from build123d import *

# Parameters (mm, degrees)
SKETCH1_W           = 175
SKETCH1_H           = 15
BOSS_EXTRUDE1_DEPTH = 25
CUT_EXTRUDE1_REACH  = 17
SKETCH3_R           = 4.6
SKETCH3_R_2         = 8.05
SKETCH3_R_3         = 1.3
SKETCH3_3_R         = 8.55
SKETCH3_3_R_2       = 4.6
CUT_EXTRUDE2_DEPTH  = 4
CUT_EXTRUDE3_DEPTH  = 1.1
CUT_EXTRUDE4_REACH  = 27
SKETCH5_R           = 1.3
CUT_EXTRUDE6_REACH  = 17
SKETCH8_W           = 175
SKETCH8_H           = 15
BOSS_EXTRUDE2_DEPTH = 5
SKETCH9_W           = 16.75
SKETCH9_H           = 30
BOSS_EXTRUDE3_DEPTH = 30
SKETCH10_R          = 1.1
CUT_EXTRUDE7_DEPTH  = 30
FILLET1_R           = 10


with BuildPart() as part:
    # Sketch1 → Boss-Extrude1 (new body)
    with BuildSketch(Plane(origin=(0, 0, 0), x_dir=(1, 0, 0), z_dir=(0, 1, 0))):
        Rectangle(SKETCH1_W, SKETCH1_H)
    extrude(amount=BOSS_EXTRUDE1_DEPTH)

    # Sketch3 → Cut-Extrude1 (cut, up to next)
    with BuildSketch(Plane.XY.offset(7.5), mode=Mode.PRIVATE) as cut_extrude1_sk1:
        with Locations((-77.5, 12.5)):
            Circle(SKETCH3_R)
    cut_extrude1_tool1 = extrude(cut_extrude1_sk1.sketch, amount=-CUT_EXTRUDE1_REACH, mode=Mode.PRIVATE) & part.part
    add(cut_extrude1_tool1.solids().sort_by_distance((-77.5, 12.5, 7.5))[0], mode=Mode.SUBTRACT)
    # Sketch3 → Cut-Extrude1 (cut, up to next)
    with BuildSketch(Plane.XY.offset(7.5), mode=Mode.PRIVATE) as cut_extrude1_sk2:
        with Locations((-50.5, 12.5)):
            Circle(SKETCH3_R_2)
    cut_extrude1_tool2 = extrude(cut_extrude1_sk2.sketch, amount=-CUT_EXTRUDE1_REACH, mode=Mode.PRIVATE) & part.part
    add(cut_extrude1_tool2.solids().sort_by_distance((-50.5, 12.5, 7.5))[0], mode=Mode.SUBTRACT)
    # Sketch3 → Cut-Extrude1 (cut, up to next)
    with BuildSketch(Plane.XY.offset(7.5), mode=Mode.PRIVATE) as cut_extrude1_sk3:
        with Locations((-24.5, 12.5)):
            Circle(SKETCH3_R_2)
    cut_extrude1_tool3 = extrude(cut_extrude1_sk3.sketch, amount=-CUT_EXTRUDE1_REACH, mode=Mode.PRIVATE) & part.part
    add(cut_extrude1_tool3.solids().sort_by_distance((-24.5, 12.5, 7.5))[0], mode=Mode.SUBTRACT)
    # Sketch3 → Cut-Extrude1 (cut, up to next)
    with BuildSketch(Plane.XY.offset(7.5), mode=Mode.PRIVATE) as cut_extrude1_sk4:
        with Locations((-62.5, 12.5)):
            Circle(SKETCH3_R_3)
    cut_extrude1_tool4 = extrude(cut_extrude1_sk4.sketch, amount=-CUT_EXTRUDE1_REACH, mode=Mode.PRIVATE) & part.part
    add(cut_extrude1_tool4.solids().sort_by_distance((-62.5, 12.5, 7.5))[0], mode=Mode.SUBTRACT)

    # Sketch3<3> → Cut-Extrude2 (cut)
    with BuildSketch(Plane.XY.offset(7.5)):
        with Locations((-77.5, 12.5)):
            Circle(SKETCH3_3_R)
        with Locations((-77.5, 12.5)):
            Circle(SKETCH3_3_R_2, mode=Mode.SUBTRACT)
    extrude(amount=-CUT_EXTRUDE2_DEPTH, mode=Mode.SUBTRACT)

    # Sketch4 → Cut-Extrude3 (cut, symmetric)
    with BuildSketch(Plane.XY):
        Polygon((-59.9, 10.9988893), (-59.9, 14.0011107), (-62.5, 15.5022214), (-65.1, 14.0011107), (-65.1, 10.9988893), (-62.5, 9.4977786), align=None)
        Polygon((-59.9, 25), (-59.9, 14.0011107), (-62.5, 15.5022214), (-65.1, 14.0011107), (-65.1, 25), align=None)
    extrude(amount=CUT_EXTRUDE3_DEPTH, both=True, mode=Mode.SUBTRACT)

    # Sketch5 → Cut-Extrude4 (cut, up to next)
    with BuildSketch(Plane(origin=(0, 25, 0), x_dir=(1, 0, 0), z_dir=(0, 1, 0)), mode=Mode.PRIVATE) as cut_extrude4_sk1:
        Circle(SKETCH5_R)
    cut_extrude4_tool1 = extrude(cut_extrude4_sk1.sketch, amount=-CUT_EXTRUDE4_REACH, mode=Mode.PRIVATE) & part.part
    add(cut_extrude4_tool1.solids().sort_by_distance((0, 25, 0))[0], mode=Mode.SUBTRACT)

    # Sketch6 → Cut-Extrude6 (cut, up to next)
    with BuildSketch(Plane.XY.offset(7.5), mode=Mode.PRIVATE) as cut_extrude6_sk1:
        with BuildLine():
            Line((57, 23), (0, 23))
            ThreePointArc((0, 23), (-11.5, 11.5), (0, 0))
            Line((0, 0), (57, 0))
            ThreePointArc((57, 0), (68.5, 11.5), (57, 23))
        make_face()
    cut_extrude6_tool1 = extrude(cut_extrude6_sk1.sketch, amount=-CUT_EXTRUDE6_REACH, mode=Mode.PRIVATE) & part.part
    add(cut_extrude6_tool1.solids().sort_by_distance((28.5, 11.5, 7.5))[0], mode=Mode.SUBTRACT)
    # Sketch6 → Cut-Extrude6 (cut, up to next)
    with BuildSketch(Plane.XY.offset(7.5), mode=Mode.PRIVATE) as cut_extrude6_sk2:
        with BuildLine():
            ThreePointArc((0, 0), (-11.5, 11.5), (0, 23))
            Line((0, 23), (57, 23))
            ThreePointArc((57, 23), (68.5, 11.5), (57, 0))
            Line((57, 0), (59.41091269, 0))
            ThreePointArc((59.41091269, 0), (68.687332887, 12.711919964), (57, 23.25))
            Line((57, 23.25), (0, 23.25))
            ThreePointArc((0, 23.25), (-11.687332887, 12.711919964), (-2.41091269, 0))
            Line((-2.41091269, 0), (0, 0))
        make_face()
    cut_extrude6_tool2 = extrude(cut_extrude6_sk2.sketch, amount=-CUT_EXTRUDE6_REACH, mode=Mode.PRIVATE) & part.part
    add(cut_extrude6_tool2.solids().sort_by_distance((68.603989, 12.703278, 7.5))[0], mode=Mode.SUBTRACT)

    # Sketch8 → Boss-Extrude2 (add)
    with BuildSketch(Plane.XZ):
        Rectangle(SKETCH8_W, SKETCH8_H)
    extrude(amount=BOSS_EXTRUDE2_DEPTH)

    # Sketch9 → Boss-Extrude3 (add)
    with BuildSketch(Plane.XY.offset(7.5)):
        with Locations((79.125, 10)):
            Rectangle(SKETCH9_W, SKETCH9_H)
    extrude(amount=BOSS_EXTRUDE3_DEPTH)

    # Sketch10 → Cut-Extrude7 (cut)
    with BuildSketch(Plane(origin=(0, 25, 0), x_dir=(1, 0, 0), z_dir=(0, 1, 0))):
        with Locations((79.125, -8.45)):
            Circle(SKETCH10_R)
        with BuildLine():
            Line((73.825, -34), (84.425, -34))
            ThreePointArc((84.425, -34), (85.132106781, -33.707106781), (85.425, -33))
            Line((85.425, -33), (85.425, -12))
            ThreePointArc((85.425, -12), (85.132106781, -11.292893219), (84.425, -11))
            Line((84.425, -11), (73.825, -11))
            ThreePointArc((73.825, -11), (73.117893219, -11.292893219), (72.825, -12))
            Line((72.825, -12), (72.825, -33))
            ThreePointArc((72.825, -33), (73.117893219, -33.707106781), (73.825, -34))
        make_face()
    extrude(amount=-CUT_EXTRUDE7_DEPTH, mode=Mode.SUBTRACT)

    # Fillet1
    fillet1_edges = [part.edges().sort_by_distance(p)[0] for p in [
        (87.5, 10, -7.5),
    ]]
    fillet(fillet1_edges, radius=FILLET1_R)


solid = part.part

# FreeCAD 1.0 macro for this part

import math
import FreeCAD as App
import Part
import Sketcher
from FreeCAD import Vector
Q = App.Units.Quantity


def edges_at(feature, points):
    """Names of the edges that pass closest to the given points."""
    edges = feature.Shape.Edges
    near = lambda p: min(range(len(edges)), key=lambda i: edges[i].distToShape(Part.Vertex(*p))[0])
    return sorted({f"Edge{near(p) + 1}" for p in points})

doc = App.newDocument("Part")
params = doc.addObject("Spreadsheet::Sheet", "Params")
for row, (alias, value) in enumerate([
    ("sketch1_width", "175 mm"),
    ("sketch1_height", "15 mm"),
    ("pad1_length", "25 mm"),
    ("sketch2_diameter", "9.2 mm"),
    ("sketch3_diameter", "16.1 mm"),
    ("sketch4_diameter", "16.1 mm"),
    ("sketch5_diameter", "2.6 mm"),
    ("sketch6_diameter", "17.1 mm"),
    ("sketch6_diameter2", "9.2 mm"),
    ("pocket5_length", "4 mm"),
    ("sketch7_width", "5.2 mm"),
    ("pocket6_length", "2.2 mm"),
    ("sketch8_diameter", "2.6 mm"),
    ("sketch9_radius", "11.5 mm"),
    ("sketch9_width", "57 mm"),
    ("sketch10_radius", "11.5 mm"),
    ("sketch10_width", "57 mm"),
    ("sketch10_radius2", "11.75 mm"),
    ("pocket9_length", "15 mm"),
    ("sketch11_width", "175 mm"),
    ("sketch11_height", "15 mm"),
    ("pad2_length", "5 mm"),
    ("sketch12_height", "30 mm"),
    ("sketch12_width", "16.75 mm"),
    ("pad3_length", "30 mm"),
    ("sketch13_radius", "1 mm"),
    ("sketch13_diameter", "2.2 mm"),
    ("sketch13_height", "21 mm"),
    ("sketch13_width", "10.6 mm"),
    ("pocket10_length", "30 mm"),
    ("fillet_radius", "10 mm"),
], start=1):
    params.set(f"A{row}", alias)
    params.set(f"B{row}", "=" + value)
    params.setAlias(f"B{row}", alias)

body = doc.addObject("PartDesign::Body", "Body")

# Sketch on XZ plane
sketch1 = doc.addObject("Sketcher::SketchObject", "Sketch")
body.addObject(sketch1)
sketch1.AttachmentSupport = (doc.XZ_Plane, [""])
sketch1.MapMode = "FlatFace"
sketch1.addGeometry([
    Part.LineSegment(Vector(-88, -8, 0), Vector(-88, 8, 0)),
    Part.LineSegment(Vector(-88, 8, 0), Vector(88, 8, 0)),
    Part.LineSegment(Vector(88, 8, 0), Vector(88, -8, 0)),
    Part.LineSegment(Vector(88, -8, 0), Vector(-88, -8, 0)),
], False)
sketch1.addConstraint([
    Sketcher.Constraint("Coincident", 0, 2, 1, 1),
    Sketcher.Constraint("Coincident", 1, 2, 2, 1),
    Sketcher.Constraint("Coincident", 2, 2, 3, 1),
    Sketcher.Constraint("Coincident", 3, 2, 0, 1),
    Sketcher.Constraint("Vertical", 0),
    Sketcher.Constraint("Horizontal", 1),
    Sketcher.Constraint("Vertical", 2),
    Sketcher.Constraint("Horizontal", 3),
    Sketcher.Constraint("Symmetric", 0, 2, 2, 2, -1, 1),
    Sketcher.Constraint("DistanceX", 1, 1, 1, 2, 175.0),
    Sketcher.Constraint("DistanceY", 0, 1, 0, 2, 15.0),
])
sketch1.setExpression("Constraints[9]", "Params.sketch1_width")
sketch1.setExpression("Constraints[10]", "Params.sketch1_height")
pad1 = doc.addObject("PartDesign::Pad", "Pad")
body.addObject(pad1)
pad1.Profile = sketch1
pad1.setExpression("Length", "Params.pad1_length")
pad1.Reversed = True

# Sketch on XY plane
sketch2 = doc.addObject("Sketcher::SketchObject", "Sketch001")
body.addObject(sketch2)
sketch2.AttachmentSupport = (doc.XY_Plane, [""])
sketch2.MapMode = "FlatFace"
sketch2.AttachmentOffset = App.Placement(Vector(0, 0, 7.5), App.Rotation())
sketch2.addGeometry(Part.Circle(Vector(-77.5, 12.5, 0), Vector(0, 0, 1), 4.6), False)
sketch2.addConstraint([
    Sketcher.Constraint("Diameter", 0, 9.2),
    Sketcher.Constraint("DistanceX", 0, 3, -1, 1, 77.5),
    Sketcher.Constraint("DistanceY", -1, 1, 0, 3, 12.5),
])
sketch2.setExpression("Constraints[0]", "Params.sketch2_diameter")
pocket1 = doc.addObject("PartDesign::Pocket", "Pocket")
body.addObject(pocket1)
pocket1.Profile = sketch2
pocket1.Type = "UpToFirst"

# Sketch on XY plane
sketch3 = doc.addObject("Sketcher::SketchObject", "Sketch002")
body.addObject(sketch3)
sketch3.AttachmentSupport = (doc.XY_Plane, [""])
sketch3.MapMode = "FlatFace"
sketch3.AttachmentOffset = App.Placement(Vector(0, 0, 7.5), App.Rotation())
sketch3.addGeometry(Part.Circle(Vector(-50, 12, 0), Vector(0, 0, 1), 8), False)
sketch3.addConstraint([
    Sketcher.Constraint("Diameter", 0, 16.1),
    Sketcher.Constraint("DistanceX", 0, 3, -1, 1, 50.5),
    Sketcher.Constraint("DistanceY", -1, 1, 0, 3, 12.5),
])
sketch3.setExpression("Constraints[0]", "Params.sketch3_diameter")
pocket2 = doc.addObject("PartDesign::Pocket", "Pocket001")
body.addObject(pocket2)
pocket2.Profile = sketch3
pocket2.Type = "UpToFirst"

# Sketch on XY plane
sketch4 = doc.addObject("Sketcher::SketchObject", "Sketch003")
body.addObject(sketch4)
sketch4.AttachmentSupport = (doc.XY_Plane, [""])
sketch4.MapMode = "FlatFace"
sketch4.AttachmentOffset = App.Placement(Vector(0, 0, 7.5), App.Rotation())
sketch4.addGeometry(Part.Circle(Vector(-24, 12, 0), Vector(0, 0, 1), 8), False)
sketch4.addConstraint([
    Sketcher.Constraint("Diameter", 0, 16.1),
    Sketcher.Constraint("DistanceX", 0, 3, -1, 1, 24.5),
    Sketcher.Constraint("DistanceY", -1, 1, 0, 3, 12.5),
])
sketch4.setExpression("Constraints[0]", "Params.sketch4_diameter")
pocket3 = doc.addObject("PartDesign::Pocket", "Pocket002")
body.addObject(pocket3)
pocket3.Profile = sketch4
pocket3.Type = "UpToFirst"

# Sketch on XY plane
sketch5 = doc.addObject("Sketcher::SketchObject", "Sketch004")
body.addObject(sketch5)
sketch5.AttachmentSupport = (doc.XY_Plane, [""])
sketch5.MapMode = "FlatFace"
sketch5.AttachmentOffset = App.Placement(Vector(0, 0, 7.5), App.Rotation())
sketch5.addGeometry(Part.Circle(Vector(-62.5, 12.5, 0), Vector(0, 0, 1), 1.3), False)
sketch5.addConstraint([
    Sketcher.Constraint("Diameter", 0, 2.6),
    Sketcher.Constraint("DistanceX", 0, 3, -1, 1, 62.5),
    Sketcher.Constraint("DistanceY", -1, 1, 0, 3, 12.5),
])
sketch5.setExpression("Constraints[0]", "Params.sketch5_diameter")
pocket4 = doc.addObject("PartDesign::Pocket", "Pocket003")
body.addObject(pocket4)
pocket4.Profile = sketch5
pocket4.Type = "UpToFirst"

# Sketch on XY plane
sketch6 = doc.addObject("Sketcher::SketchObject", "Sketch005")
body.addObject(sketch6)
sketch6.AttachmentSupport = (doc.XY_Plane, [""])
sketch6.MapMode = "FlatFace"
sketch6.AttachmentOffset = App.Placement(Vector(0, 0, 7.5), App.Rotation())
sketch6.addGeometry([
    Part.Circle(Vector(-77.5, 12.5, 0), Vector(0, 0, 1), 8.6),
    Part.Circle(Vector(-77.5, 12.5, 0), Vector(0, 0, 1), 4.6),
], False)
sketch6.addConstraint([
    Sketcher.Constraint("Coincident", 1, 3, 0, 3),
    Sketcher.Constraint("Diameter", 0, 17.1),
    Sketcher.Constraint("Diameter", 1, 9.2),
    Sketcher.Constraint("DistanceX", 0, 3, -1, 1, 77.5),
    Sketcher.Constraint("DistanceY", -1, 1, 0, 3, 12.5),
])
sketch6.setExpression("Constraints[1]", "Params.sketch6_diameter")
sketch6.setExpression("Constraints[2]", "Params.sketch6_diameter2")
pocket5 = doc.addObject("PartDesign::Pocket", "Pocket004")
body.addObject(pocket5)
pocket5.Profile = sketch6
pocket5.setExpression("Length", "Params.pocket5_length")

# Sketch on XY plane
sketch7 = doc.addObject("Sketcher::SketchObject", "Sketch006")
body.addObject(sketch7)
sketch7.AttachmentSupport = (doc.XY_Plane, [""])
sketch7.MapMode = "FlatFace"
sketch7.addGeometry([
    Part.LineSegment(Vector(-59.9, 11, 0), Vector(-59.9, 25, 0)),  # 0
    Part.LineSegment(Vector(-59.9, 25, 0), Vector(-65.1, 25, 0)),  # 1
    Part.LineSegment(Vector(-65.1, 25, 0), Vector(-65.1, 11, 0)),  # 2
    Part.LineSegment(Vector(-65.1, 11, 0), Vector(-62.5, 9.5, 0)),  # 3
    Part.LineSegment(Vector(-62.5, 9.5, 0), Vector(-59.9, 11, 0)),  # 4
], False)
sketch7.addConstraint([
    Sketcher.Constraint("Coincident", 0, 2, 1, 1),
    Sketcher.Constraint("Coincident", 1, 2, 2, 1),
    Sketcher.Constraint("Coincident", 2, 2, 3, 1),
    Sketcher.Constraint("Coincident", 3, 2, 4, 1),
    Sketcher.Constraint("Coincident", 4, 2, 0, 1),
    Sketcher.Constraint("Vertical", 0),
    Sketcher.Constraint("Horizontal", 1),
    Sketcher.Constraint("Vertical", 2),
    Sketcher.Constraint("Horizontal", 2, 2, 4, 2),
    Sketcher.Constraint("Equal", 3, 4),
    Sketcher.Constraint("Angle", 3, Q("-30 deg")),
    Sketcher.Constraint("DistanceX", 1, 2, 1, 1, 5.2),
    Sketcher.Constraint("DistanceY", -1, 1, 0, 2, 25.0),
    Sketcher.Constraint("DistanceX", 0, 2, -1, 1, 59.9),
    Sketcher.Constraint("DistanceY", 0, 1, 0, 2, 14.001111),
])
sketch7.setExpression("Constraints[11]", "Params.sketch7_width")
pocket6 = doc.addObject("PartDesign::Pocket", "Pocket005")
body.addObject(pocket6)
pocket6.Profile = sketch7
pocket6.setExpression("Length", "Params.pocket6_length")
pocket6.Midplane = True

# Sketch on XZ plane
sketch8 = doc.addObject("Sketcher::SketchObject", "Sketch007")
body.addObject(sketch8)
sketch8.AttachmentSupport = (doc.XZ_Plane, [""])
sketch8.MapMode = "FlatFace"
sketch8.AttachmentOffset = App.Placement(Vector(0, 0, -25), App.Rotation())
sketch8.addGeometry(Part.Circle(Vector(0, 0, 0), Vector(0, 0, 1), 1.3), False)
sketch8.addConstraint([
    Sketcher.Constraint("Coincident", 0, 3, -1, 1),
    Sketcher.Constraint("Diameter", 0, 2.6),
])
sketch8.setExpression("Constraints[1]", "Params.sketch8_diameter")
pocket7 = doc.addObject("PartDesign::Pocket", "Pocket006")
body.addObject(pocket7)
pocket7.Profile = sketch8
pocket7.Type = "UpToFirst"
pocket7.Reversed = True

# Sketch on XY plane
sketch9 = doc.addObject("Sketcher::SketchObject", "Sketch008")
body.addObject(sketch9)
sketch9.AttachmentSupport = (doc.XY_Plane, [""])
sketch9.MapMode = "FlatFace"
sketch9.AttachmentOffset = App.Placement(Vector(0, 0, 7.5), App.Rotation())
sketch9.addGeometry([
    Part.LineSegment(Vector(57, 23, 0), Vector(0, 23, 0)),
    Part.ArcOfCircle(Part.Circle(Vector(0, 12, 0), Vector(0, 0, 1), 12), math.radians(90), math.radians(270)),
    Part.LineSegment(Vector(0, 0, 0), Vector(57, 0, 0)),
    Part.ArcOfCircle(Part.Circle(Vector(57, 12, 0), Vector(0, 0, 1), 12), math.radians(-90), math.radians(90)),
], False)
sketch9.addConstraint([
    Sketcher.Constraint("Tangent", 0, 2, 1, 1),
    Sketcher.Constraint("Tangent", 1, 2, 2, 1),
    Sketcher.Constraint("Tangent", 2, 2, 3, 1),
    Sketcher.Constraint("Tangent", 3, 2, 0, 1),
    Sketcher.Constraint("Horizontal", 0),
    Sketcher.Constraint("Horizontal", 2),
    Sketcher.Constraint("Coincident", 1, 2, -1, 1),
    Sketcher.Constraint("Radius", 1, 11.5),
    Sketcher.Constraint("DistanceX", 0, 2, 0, 1, 57.0),
])
sketch9.setExpression("Constraints[7]", "Params.sketch9_radius")
sketch9.setExpression("Constraints[8]", "Params.sketch9_width")
pocket8 = doc.addObject("PartDesign::Pocket", "Pocket007")
body.addObject(pocket8)
pocket8.Profile = sketch9
pocket8.Type = "UpToFirst"

# Sketch on XY plane
sketch10 = doc.addObject("Sketcher::SketchObject", "Sketch009")
body.addObject(sketch10)
sketch10.AttachmentSupport = (doc.XY_Plane, [""])
sketch10.MapMode = "FlatFace"
sketch10.AttachmentOffset = App.Placement(Vector(0, 0, 7.5), App.Rotation())
sketch10.addGeometry([
    Part.ArcOfCircle(Part.Circle(Vector(0, 11.5, 0), Vector(0, 0, 1), 11.5), math.radians(90), math.radians(270)),  # 0
    Part.LineSegment(Vector(0, 23, 0), Vector(57, 23, 0)),  # 1
    Part.ArcOfCircle(Part.Circle(Vector(57, 11.5, 0), Vector(0, 0, 1), 11.5), math.radians(-90), math.radians(90)),  # 2
    Part.LineSegment(Vector(57, 0, 0), Vector(59.4, 0, 0)),  # 3
    Part.ArcOfCircle(Part.Circle(Vector(57, 11.5, 0), Vector(0, 0, 1), 11.8), math.radians(-78), math.radians(90)),  # 4
    Part.LineSegment(Vector(57, 23.2, 0), Vector(0, 23.2, 0)),  # 5
    Part.ArcOfCircle(Part.Circle(Vector(0, 11.5, 0), Vector(0, 0, 1), 11.8), math.radians(90), math.radians(258)),  # 6
    Part.LineSegment(Vector(-2.4, 0, 0), Vector(0, 0, 0)),  # 7
], False)
sketch10.addConstraint([
    Sketcher.Constraint("Tangent", 0, 1, 1, 1),
    Sketcher.Constraint("Tangent", 1, 2, 2, 2),
    Sketcher.Constraint("Tangent", 2, 1, 3, 1),
    Sketcher.Constraint("Coincident", 3, 2, 4, 1),
    Sketcher.Constraint("Tangent", 4, 2, 5, 1),
    Sketcher.Constraint("Tangent", 5, 2, 6, 1),
    Sketcher.Constraint("Coincident", 6, 2, 7, 1),
    Sketcher.Constraint("Tangent", 7, 2, 0, 2),
    Sketcher.Constraint("Horizontal", 1),
    Sketcher.Constraint("Horizontal", 3),
    Sketcher.Constraint("Horizontal", 5),
    Sketcher.Constraint("Horizontal", 7),
    Sketcher.Constraint("Coincident", 7, 2, -1, 1),
    Sketcher.Constraint("Coincident", 4, 3, 2, 3),
    Sketcher.Constraint("Coincident", 6, 3, 0, 3),
    Sketcher.Constraint("Equal", 0, 2),
    Sketcher.Constraint("Radius", 0, 11.5),
    Sketcher.Constraint("DistanceX", 1, 1, 1, 2, 57.0),
    Sketcher.Constraint("Radius", 4, 11.75),
])
sketch10.setExpression("Constraints[16]", "Params.sketch10_radius")
sketch10.setExpression("Constraints[17]", "Params.sketch10_width")
sketch10.setExpression("Constraints[18]", "Params.sketch10_radius2")
pocket9 = doc.addObject("PartDesign::Pocket", "Pocket008")
body.addObject(pocket9)
pocket9.Profile = sketch10
pocket9.setExpression("Length", "Params.pocket9_length")

# Sketch on XZ plane
sketch11 = doc.addObject("Sketcher::SketchObject", "Sketch010")
body.addObject(sketch11)
sketch11.AttachmentSupport = (doc.XZ_Plane, [""])
sketch11.MapMode = "FlatFace"
sketch11.addGeometry([
    Part.LineSegment(Vector(-88, 8, 0), Vector(-88, -8, 0)),
    Part.LineSegment(Vector(-88, -8, 0), Vector(88, -8, 0)),
    Part.LineSegment(Vector(88, -8, 0), Vector(88, 8, 0)),
    Part.LineSegment(Vector(88, 8, 0), Vector(-88, 8, 0)),
], False)
sketch11.addConstraint([
    Sketcher.Constraint("Coincident", 0, 2, 1, 1),
    Sketcher.Constraint("Coincident", 1, 2, 2, 1),
    Sketcher.Constraint("Coincident", 2, 2, 3, 1),
    Sketcher.Constraint("Coincident", 3, 2, 0, 1),
    Sketcher.Constraint("Vertical", 0),
    Sketcher.Constraint("Horizontal", 1),
    Sketcher.Constraint("Vertical", 2),
    Sketcher.Constraint("Horizontal", 3),
    Sketcher.Constraint("Symmetric", 0, 2, 2, 2, -1, 1),
    Sketcher.Constraint("DistanceX", 1, 1, 1, 2, 175.0),
    Sketcher.Constraint("DistanceY", 0, 2, 0, 1, 15.0),
])
sketch11.setExpression("Constraints[9]", "Params.sketch11_width")
sketch11.setExpression("Constraints[10]", "Params.sketch11_height")
pad2 = doc.addObject("PartDesign::Pad", "Pad001")
body.addObject(pad2)
pad2.Profile = sketch11
pad2.setExpression("Length", "Params.pad2_length")

# Sketch on XY plane
sketch12 = doc.addObject("Sketcher::SketchObject", "Sketch011")
body.addObject(sketch12)
sketch12.AttachmentSupport = (doc.XY_Plane, [""])
sketch12.MapMode = "FlatFace"
sketch12.AttachmentOffset = App.Placement(Vector(0, 0, 7.5), App.Rotation())
sketch12.addGeometry([
    Part.LineSegment(Vector(71, 25, 0), Vector(71, -5, 0)),
    Part.LineSegment(Vector(71, -5, 0), Vector(88, -5, 0)),
    Part.LineSegment(Vector(88, -5, 0), Vector(88, 25, 0)),
    Part.LineSegment(Vector(88, 25, 0), Vector(71, 25, 0)),
], False)
sketch12.addConstraint([
    Sketcher.Constraint("Coincident", 0, 2, 1, 1),
    Sketcher.Constraint("Coincident", 1, 2, 2, 1),
    Sketcher.Constraint("Coincident", 2, 2, 3, 1),
    Sketcher.Constraint("Coincident", 3, 2, 0, 1),
    Sketcher.Constraint("Vertical", 0),
    Sketcher.Constraint("Horizontal", 1),
    Sketcher.Constraint("Vertical", 2),
    Sketcher.Constraint("Horizontal", 3),
    Sketcher.Constraint("DistanceY", 0, 2, 0, 1, 30.0),
    Sketcher.Constraint("DistanceY", 0, 2, -1, 1, 5.0),
    Sketcher.Constraint("DistanceX", 1, 1, 1, 2, 16.75),
    Sketcher.Constraint("DistanceX", -1, 1, 1, 2, 87.5),
])
sketch12.setExpression("Constraints[8]", "Params.sketch12_height")
sketch12.setExpression("Constraints[10]", "Params.sketch12_width")
pad3 = doc.addObject("PartDesign::Pad", "Pad002")
body.addObject(pad3)
pad3.Profile = sketch12
pad3.setExpression("Length", "Params.pad3_length")

# Sketch on XZ plane
sketch13 = doc.addObject("Sketcher::SketchObject", "Sketch012")
body.addObject(sketch13)
sketch13.AttachmentSupport = (doc.XZ_Plane, [""])
sketch13.MapMode = "FlatFace"
sketch13.AttachmentOffset = App.Placement(Vector(0, 0, -25), App.Rotation())
sketch13.addGeometry([
    Part.Circle(Vector(79.1, 8.4, 0), Vector(0, 0, 1), 1.1),  # 0
    Part.LineSegment(Vector(73.8, 34, 0), Vector(84.4, 34, 0)),  # 1
    Part.ArcOfCircle(Part.Circle(Vector(84.4, 33, 0), Vector(0, 0, 1), 1), math.radians(0), math.radians(90)),  # 2
    Part.LineSegment(Vector(85.4, 33, 0), Vector(85.4, 12, 0)),  # 3
    Part.ArcOfCircle(Part.Circle(Vector(84.4, 12, 0), Vector(0, 0, 1), 1), math.radians(-90), math.radians(0)),  # 4
    Part.LineSegment(Vector(84.4, 11, 0), Vector(73.8, 11, 0)),  # 5
    Part.ArcOfCircle(Part.Circle(Vector(73.8, 12, 0), Vector(0, 0, 1), 1), math.radians(-180), math.radians(-90)),  # 6
    Part.LineSegment(Vector(72.8, 12, 0), Vector(72.8, 33, 0)),  # 7
    Part.ArcOfCircle(Part.Circle(Vector(73.8, 33, 0), Vector(0, 0, 1), 1), math.radians(90), math.radians(180)),  # 8
], False)
sketch13.addConstraint([
    Sketcher.Constraint("Tangent", 1, 2, 2, 2),
    Sketcher.Constraint("Tangent", 2, 1, 3, 1),
    Sketcher.Constraint("Tangent", 3, 2, 4, 2),
    Sketcher.Constraint("Tangent", 4, 1, 5, 1),
    Sketcher.Constraint("Tangent", 5, 2, 6, 2),
    Sketcher.Constraint("Tangent", 6, 1, 7, 1),
    Sketcher.Constraint("Tangent", 7, 2, 8, 2),
    Sketcher.Constraint("Tangent", 8, 1, 1, 1),
    Sketcher.Constraint("Horizontal", 1),
    Sketcher.Constraint("Vertical", 3),
    Sketcher.Constraint("Horizontal", 5),
    Sketcher.Constraint("Vertical", 7),
    Sketcher.Constraint("Equal", 2, 4),
    Sketcher.Constraint("Equal", 4, 6),
    Sketcher.Constraint("Equal", 6, 8),
    Sketcher.Constraint("Radius", 2, 1.0),
    Sketcher.Constraint("Diameter", 0, 2.2),
    Sketcher.Constraint("DistanceY", 3, 2, 3, 1, 21.0),
    Sketcher.Constraint("DistanceX", 1, 1, 1, 2, 10.6),
    Sketcher.Constraint("DistanceY", -1, 1, 2, 3, 33.0),
    Sketcher.Constraint("DistanceX", 0, 3, 2, 3, 5.3),
    Sketcher.Constraint("DistanceY", -1, 1, 0, 3, 8.45),
    Sketcher.Constraint("DistanceX", -1, 1, 0, 3, 79.125),
])
sketch13.setExpression("Constraints[15]", "Params.sketch13_radius")
sketch13.setExpression("Constraints[16]", "Params.sketch13_diameter")
sketch13.setExpression("Constraints[17]", "Params.sketch13_height")
sketch13.setExpression("Constraints[18]", "Params.sketch13_width")
pocket10 = doc.addObject("PartDesign::Pocket", "Pocket009")
body.addObject(pocket10)
pocket10.Profile = sketch13
pocket10.setExpression("Length", "Params.pocket10_length")
pocket10.Reversed = True
doc.recompute()

fillet = doc.addObject("PartDesign::Fillet", "Fillet")
body.addObject(fillet)
fillet.Base = (pocket10, edges_at(pocket10, [(87.5, 10, -7.5)]))
fillet.setExpression("Radius", "Params.fillet_radius")

doc.recompute()
